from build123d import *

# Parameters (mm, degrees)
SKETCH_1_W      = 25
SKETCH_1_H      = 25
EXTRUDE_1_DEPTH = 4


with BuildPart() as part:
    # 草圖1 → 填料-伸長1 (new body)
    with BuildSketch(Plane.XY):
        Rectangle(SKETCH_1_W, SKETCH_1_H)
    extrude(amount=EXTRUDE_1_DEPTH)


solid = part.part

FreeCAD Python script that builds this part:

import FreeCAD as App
import Part
import Sketcher

doc = App.newDocument("Part")
body = doc.addObject("PartDesign::Body", "Body")

# Sketch on XY plane
sketch1 = body.newObject("Sketcher::SketchObject", "Sketch")
sketch1.AttachmentSupport = (doc.getObject("XY_Plane"), [""])
sketch1.MapMode = "FlatFace"
sketch1.addGeometry(Part.LineSegment(App.Vector(-12, 12, 0), App.Vector(-12, -12, 0)), False)
sketch1.addGeometry(Part.LineSegment(App.Vector(-12, -12, 0), App.Vector(12, -12, 0)), False)
sketch1.addGeometry(Part.LineSegment(App.Vector(12, -12, 0), App.Vector(12, 12, 0)), False)
sketch1.addGeometry(Part.LineSegment(App.Vector(12, 12, 0), App.Vector(-12, 12, 0)), False)
sketch1.addConstraint(Sketcher.Constraint("Coincident", 0, 2, 1, 1))
sketch1.addConstraint(Sketcher.Constraint("Coincident", 1, 2, 2, 1))
sketch1.addConstraint(Sketcher.Constraint("Coincident", 2, 2, 3, 1))
sketch1.addConstraint(Sketcher.Constraint("Coincident", 3, 2, 0, 1))
sketch1.addConstraint(Sketcher.Constraint("Vertical", 0))
sketch1.addConstraint(Sketcher.Constraint("Horizontal", 1))
sketch1.addConstraint(Sketcher.Constraint("Vertical", 2))
sketch1.addConstraint(Sketcher.Constraint("Horizontal", 3))
sketch1.addConstraint(Sketcher.Constraint("Symmetric", 0, 2, 2, 2, -1, 1))
sketch1.addConstraint(Sketcher.Constraint("Equal", 3, 0))
sketch1.addConstraint(Sketcher.Constraint("DistanceX", 1, 1, 1, 2, 25.0))
pad1 = body.newObject("PartDesign::Pad", "Pad")
pad1.Profile = sketch1
pad1.Length = 4

doc.recompute()
